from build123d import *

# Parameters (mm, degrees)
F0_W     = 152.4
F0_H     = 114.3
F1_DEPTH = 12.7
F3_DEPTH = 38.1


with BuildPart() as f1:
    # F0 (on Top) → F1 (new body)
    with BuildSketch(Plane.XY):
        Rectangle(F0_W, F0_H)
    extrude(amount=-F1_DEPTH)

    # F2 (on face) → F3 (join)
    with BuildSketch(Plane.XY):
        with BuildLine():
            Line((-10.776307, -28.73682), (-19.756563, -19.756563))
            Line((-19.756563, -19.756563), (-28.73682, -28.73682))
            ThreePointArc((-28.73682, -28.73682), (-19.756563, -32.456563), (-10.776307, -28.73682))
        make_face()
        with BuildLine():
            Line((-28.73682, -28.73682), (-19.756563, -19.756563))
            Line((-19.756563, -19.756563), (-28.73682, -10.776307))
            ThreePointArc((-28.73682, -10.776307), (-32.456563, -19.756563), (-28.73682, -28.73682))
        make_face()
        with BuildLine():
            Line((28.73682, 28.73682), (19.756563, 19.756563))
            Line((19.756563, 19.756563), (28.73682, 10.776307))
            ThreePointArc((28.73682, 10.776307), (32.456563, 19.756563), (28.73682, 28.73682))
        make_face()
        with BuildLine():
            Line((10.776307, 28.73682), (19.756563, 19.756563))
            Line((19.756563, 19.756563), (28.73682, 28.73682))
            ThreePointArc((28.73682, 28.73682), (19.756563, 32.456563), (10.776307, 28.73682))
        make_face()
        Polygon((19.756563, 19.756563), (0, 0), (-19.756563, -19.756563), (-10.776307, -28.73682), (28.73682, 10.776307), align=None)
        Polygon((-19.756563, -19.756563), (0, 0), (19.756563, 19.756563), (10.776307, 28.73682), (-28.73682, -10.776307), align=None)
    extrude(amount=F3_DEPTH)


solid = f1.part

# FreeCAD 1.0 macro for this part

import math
import FreeCAD as App
import Part
import Sketcher
from FreeCAD import Vector
Q = App.Units.Quantity

doc = App.newDocument("Part")
body = doc.addObject("PartDesign::Body", "Body")

sketch1 = body.newObject("Sketcher::SketchObject", "Sketch")
sketch1.AttachmentSupport = (doc.getObject("XY_Plane"), [""])
sketch1.MapMode = "FlatFace"
sketch1.addGeometry(Part.LineSegment(Vector(-76.2, 57.15, 0), Vector(-76.2, -57.15, 0)), False)
sketch1.addGeometry(Part.LineSegment(Vector(-76.2, -57.15, 0), Vector(76.2, -57.15, 0)), False)
sketch1.addGeometry(Part.LineSegment(Vector(76.2, -57.15, 0), Vector(76.2, 57.15, 0)), False)
sketch1.addGeometry(Part.LineSegment(Vector(76.2, 57.15, 0), Vector(-76.2, 57.15, 0)), False)
sketch1.addConstraint(Sketcher.Constraint("Coincident", 0, 2, 1, 1))
sketch1.addConstraint(Sketcher.Constraint("Coincident", 1, 2, 2, 1))
sketch1.addConstraint(Sketcher.Constraint("Coincident", 2, 2, 3, 1))
sketch1.addConstraint(Sketcher.Constraint("Coincident", 3, 2, 0, 1))
sketch1.addConstraint(Sketcher.Constraint("Vertical", 0))
sketch1.addConstraint(Sketcher.Constraint("Horizontal", 1))
sketch1.addConstraint(Sketcher.Constraint("Vertical", 2))
sketch1.addConstraint(Sketcher.Constraint("Horizontal", 3))
sketch1.addConstraint(Sketcher.Constraint("Symmetric", 0, 2, 2, 2, -1, 1))
sketch1.addConstraint(Sketcher.Constraint("DistanceX", 1, 1, 1, 2, Q("6 in")))
sketch1.addConstraint(Sketcher.Constraint("DistanceY", 0, 2, 0, 1, Q("4.5 in")))
pad1 = body.newObject("PartDesign::Pad", "Pad")
pad1.Profile = sketch1
pad1.Length = Q("0.5 in")
pad1.Reversed = True

sketch2 = body.newObject("Sketcher::SketchObject", "Sketch001")
sketch2.AttachmentSupport = (doc.getObject("XY_Plane"), [""])
sketch2.MapMode = "FlatFace"
sketch2.addGeometry(Part.ArcOfCircle(Part.Circle(Vector(-19.75656, -19.756563, 0), Vector(0, 0, 1), 12.700003), math.radians(135.000011), math.radians(224.999989)), False)
sketch2.addGeometry(Part.ArcOfCircle(Part.Circle(Vector(-19.756563, -19.75656, 0), Vector(0, 0, 1), 12.700003), math.radians(-134.999989), math.radians(-45.000011)), False)
sketch2.addGeometry(Part.LineSegment(Vector(-10.776307, -28.73682, 0), Vector(28.73682, 10.776307, 0)), False)
sketch2.addGeometry(Part.ArcOfCircle(Part.Circle(Vector(19.75656, 19.756563, 0), Vector(0, 0, 1), 12.700003), math.radians(-44.999989), math.radians(44.999989)), False)
sketch2.addGeometry(Part.ArcOfCircle(Part.Circle(Vector(19.756563, 19.75656, 0), Vector(0, 0, 1), 12.700003), math.radians(45.000011), math.radians(134.999989)), False)
sketch2.addGeometry(Part.LineSegment(Vector(10.776307, 28.73682, 0), Vector(-28.73682, -10.776307, 0)), False)
sketch2.addConstraint(Sketcher.Constraint("Tangent", 0, 2, 1, 1))
sketch2.addConstraint(Sketcher.Constraint("Tangent", 1, 2, 2, 1))
sketch2.addConstraint(Sketcher.Constraint("Tangent", 2, 2, 3, 1))
sketch2.addConstraint(Sketcher.Constraint("Tangent", 3, 2, 4, 1))
sketch2.addConstraint(Sketcher.Constraint("Tangent", 4, 2, 5, 1))
sketch2.addConstraint(Sketcher.Constraint("Tangent", 5, 2, 0, 1))
sketch2.addConstraint(Sketcher.Constraint("Equal", 0, 1))
sketch2.addConstraint(Sketcher.Constraint("Equal", 1, 3))
sketch2.addConstraint(Sketcher.Constraint("Equal", 3, 4))
sketch2.addConstraint(Sketcher.Constraint("Symmetric", 0, 3, 3, 3, -1, 1))
sketch2.addConstraint(Sketcher.Constraint("Horizontal", 0, 2, 1, 2))
sketch2.addConstraint(Sketcher.Constraint("Horizontal", 3, 2, 4, 2))
sketch2.addConstraint(Sketcher.Constraint("Radius", 0, Q("0.5000001 in")))
sketch2.addConstraint(Sketcher.Constraint("Angle", 2, Q("45 deg")))
sketch2.addConstraint(Sketcher.Constraint("Distance", 2, Q("2.2 in")))
pad2 = body.newObject("PartDesign::Pad", "Pad001")
pad2.Profile = sketch2
pad2.Length = Q("1.5 in")

doc.recompute()
